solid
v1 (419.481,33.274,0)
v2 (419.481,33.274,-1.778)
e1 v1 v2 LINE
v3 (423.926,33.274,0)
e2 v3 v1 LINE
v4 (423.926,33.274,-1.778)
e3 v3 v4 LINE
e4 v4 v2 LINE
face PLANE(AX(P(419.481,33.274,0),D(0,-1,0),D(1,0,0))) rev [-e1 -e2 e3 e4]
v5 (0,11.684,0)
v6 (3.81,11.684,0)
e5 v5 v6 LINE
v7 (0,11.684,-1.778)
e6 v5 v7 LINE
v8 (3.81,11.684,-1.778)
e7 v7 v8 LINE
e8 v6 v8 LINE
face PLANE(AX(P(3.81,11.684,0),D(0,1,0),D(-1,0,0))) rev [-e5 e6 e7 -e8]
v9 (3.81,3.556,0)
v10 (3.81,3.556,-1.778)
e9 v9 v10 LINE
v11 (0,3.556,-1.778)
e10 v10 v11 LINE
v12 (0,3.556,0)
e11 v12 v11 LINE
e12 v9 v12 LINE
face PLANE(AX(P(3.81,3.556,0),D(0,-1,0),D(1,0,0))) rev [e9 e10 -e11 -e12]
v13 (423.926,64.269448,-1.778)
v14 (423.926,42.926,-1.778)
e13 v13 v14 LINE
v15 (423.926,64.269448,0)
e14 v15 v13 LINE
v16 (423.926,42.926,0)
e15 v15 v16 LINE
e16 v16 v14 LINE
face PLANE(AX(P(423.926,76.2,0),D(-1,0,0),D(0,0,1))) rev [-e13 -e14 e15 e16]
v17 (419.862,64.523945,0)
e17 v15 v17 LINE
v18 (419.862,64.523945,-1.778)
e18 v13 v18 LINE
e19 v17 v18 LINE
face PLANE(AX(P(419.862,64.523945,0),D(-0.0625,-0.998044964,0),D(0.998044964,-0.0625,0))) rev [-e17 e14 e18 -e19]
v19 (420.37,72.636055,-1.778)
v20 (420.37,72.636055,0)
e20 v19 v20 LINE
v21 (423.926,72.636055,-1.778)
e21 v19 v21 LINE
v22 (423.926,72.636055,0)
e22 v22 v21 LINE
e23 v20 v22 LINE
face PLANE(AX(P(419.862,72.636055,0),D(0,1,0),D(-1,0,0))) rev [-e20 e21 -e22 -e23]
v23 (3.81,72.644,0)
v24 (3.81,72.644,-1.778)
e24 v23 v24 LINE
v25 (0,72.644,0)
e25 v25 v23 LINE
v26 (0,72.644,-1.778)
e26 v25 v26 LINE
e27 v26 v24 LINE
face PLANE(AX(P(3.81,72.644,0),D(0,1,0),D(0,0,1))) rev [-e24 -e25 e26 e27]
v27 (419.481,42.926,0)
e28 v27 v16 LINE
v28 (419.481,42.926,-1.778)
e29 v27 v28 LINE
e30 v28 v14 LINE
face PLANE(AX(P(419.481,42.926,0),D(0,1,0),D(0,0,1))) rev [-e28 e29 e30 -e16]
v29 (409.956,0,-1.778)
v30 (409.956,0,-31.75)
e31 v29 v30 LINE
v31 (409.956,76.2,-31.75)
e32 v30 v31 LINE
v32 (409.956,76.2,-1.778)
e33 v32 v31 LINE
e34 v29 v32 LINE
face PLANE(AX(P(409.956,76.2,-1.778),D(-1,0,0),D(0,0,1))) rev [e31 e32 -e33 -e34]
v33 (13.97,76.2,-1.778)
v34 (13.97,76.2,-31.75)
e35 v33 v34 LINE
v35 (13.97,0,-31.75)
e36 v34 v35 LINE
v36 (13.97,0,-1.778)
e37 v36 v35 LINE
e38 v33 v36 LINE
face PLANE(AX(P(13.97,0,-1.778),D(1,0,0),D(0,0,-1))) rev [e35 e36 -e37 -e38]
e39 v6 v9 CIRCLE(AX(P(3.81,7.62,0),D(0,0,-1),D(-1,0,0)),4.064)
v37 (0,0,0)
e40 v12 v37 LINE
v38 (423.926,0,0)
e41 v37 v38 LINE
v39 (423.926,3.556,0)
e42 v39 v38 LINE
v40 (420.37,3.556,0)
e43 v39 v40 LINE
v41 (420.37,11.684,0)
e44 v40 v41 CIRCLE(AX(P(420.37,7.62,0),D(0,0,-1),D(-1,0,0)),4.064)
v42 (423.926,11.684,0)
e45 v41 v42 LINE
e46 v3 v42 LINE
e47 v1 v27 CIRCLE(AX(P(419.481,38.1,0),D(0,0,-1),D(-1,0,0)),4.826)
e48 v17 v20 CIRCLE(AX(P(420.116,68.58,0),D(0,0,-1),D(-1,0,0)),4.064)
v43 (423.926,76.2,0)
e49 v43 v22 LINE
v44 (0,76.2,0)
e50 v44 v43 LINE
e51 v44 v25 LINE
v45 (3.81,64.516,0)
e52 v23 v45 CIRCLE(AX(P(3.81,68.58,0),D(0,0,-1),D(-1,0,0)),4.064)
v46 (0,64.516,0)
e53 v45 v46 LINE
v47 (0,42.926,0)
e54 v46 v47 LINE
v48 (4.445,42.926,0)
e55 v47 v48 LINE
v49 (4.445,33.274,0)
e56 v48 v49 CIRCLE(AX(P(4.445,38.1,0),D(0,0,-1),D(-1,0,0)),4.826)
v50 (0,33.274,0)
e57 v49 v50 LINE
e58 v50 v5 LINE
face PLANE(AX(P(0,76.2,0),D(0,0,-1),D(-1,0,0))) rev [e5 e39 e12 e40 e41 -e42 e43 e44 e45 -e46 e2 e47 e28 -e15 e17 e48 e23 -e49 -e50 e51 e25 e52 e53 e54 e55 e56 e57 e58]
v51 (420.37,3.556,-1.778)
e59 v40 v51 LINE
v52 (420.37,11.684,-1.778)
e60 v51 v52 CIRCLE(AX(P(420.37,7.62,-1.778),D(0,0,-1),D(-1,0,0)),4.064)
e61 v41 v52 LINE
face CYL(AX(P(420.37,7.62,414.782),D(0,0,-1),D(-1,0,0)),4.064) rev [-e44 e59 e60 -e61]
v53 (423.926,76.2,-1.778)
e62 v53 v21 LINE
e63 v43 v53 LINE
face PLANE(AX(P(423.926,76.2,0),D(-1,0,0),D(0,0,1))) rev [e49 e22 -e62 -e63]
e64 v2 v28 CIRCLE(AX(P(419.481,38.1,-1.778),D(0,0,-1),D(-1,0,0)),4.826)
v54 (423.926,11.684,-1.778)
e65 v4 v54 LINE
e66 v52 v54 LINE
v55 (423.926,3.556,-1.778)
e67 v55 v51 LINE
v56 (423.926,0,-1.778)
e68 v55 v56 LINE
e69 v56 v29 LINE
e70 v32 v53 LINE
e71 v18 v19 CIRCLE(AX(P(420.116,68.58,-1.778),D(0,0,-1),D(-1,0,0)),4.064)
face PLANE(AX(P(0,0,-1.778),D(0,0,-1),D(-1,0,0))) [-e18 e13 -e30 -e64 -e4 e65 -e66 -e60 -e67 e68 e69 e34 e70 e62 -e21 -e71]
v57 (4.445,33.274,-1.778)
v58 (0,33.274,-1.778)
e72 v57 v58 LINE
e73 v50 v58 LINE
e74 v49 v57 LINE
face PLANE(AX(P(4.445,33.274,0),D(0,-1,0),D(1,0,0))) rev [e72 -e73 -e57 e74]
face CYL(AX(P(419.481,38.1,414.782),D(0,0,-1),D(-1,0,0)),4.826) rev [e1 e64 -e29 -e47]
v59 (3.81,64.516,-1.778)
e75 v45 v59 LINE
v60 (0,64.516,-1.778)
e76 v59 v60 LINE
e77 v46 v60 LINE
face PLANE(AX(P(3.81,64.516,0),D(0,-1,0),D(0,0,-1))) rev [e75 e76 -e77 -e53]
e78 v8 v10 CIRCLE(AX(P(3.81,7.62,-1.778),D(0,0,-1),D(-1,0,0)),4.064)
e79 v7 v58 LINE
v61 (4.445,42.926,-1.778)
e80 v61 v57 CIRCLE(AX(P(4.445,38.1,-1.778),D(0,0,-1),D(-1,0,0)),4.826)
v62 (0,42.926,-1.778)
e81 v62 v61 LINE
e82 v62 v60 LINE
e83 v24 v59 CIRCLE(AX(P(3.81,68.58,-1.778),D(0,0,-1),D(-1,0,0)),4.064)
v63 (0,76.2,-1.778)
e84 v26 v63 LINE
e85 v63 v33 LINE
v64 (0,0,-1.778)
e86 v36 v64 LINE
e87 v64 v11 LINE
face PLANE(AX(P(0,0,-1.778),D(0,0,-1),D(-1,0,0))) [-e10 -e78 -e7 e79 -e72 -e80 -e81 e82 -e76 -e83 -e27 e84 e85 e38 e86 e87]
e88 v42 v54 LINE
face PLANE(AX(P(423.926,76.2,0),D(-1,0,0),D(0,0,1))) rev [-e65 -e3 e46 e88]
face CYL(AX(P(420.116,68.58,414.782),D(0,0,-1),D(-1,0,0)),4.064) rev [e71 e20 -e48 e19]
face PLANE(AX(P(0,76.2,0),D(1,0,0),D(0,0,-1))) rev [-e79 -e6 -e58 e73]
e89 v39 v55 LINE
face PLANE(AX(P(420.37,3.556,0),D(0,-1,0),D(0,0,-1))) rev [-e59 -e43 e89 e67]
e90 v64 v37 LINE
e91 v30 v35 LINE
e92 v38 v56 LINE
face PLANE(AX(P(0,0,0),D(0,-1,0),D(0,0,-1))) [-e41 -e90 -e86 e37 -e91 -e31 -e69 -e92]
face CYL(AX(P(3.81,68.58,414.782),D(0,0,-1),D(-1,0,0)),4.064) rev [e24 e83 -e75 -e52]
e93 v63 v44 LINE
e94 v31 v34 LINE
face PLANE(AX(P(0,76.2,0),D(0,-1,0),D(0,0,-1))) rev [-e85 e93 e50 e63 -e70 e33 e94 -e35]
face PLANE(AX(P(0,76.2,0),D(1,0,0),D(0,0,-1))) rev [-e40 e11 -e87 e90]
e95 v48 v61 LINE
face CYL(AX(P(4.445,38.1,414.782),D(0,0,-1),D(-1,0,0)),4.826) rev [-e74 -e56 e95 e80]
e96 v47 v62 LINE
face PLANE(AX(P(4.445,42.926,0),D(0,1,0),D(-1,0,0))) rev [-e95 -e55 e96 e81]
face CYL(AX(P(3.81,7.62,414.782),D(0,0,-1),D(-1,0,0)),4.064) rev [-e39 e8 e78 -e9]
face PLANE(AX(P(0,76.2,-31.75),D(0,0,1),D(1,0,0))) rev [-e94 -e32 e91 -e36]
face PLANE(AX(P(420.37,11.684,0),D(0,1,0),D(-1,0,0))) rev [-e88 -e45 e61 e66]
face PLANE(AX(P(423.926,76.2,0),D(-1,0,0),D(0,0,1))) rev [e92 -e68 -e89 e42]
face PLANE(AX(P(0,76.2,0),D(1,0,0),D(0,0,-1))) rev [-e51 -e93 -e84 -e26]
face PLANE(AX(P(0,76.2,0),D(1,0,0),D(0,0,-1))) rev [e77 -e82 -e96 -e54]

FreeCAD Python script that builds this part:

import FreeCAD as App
import Part
import Sketcher
from FreeCAD import Vector
Q = App.Units.Quantity


def add_polygon(sketch, points):
    """Adds a closed chain of lines whose ends are joined by coincident constraints."""
    first, n = sketch.GeometryCount, len(points)
    for a, b in zip(points, points[1:] + points[:1]):
        sketch.addGeometry(Part.LineSegment(App.Vector(*a, 0), App.Vector(*b, 0)), False)
    for i in range(n):
        sketch.addConstraint(Sketcher.Constraint("Coincident", first + i, 2, first + (i + 1) % n, 1))

doc = App.newDocument("Part")
body = doc.addObject("PartDesign::Body", "Body")

# Sketch on XZ plane
sketch1 = body.newObject("Sketcher::SketchObject", "Sketch")
sketch1.AttachmentSupport = (doc.getObject("XZ_Plane"), [""])
sketch1.MapMode = "FlatFace"
add_polygon(sketch1, [(0, -32), (0, 0), (424, 0), (424, -32)])  # lines 0-3
sketch1.addConstraint([
    Sketcher.Constraint("Vertical", 0),
    Sketcher.Constraint("Horizontal", 1),
    Sketcher.Constraint("Vertical", 2),
    Sketcher.Constraint("Horizontal", 3),
    Sketcher.Constraint("Coincident", 0, 2, -1, 1),
    Sketcher.Constraint("DistanceX", 1, 1, 1, 2, Q("16.69 in")),
    Sketcher.Constraint("DistanceY", 0, 1, 0, 2, Q("1.25 in")),
])
pad1 = body.newObject("PartDesign::Pad", "Pad")
pad1.Profile = sketch1
pad1.Length = Q("3 in")
pad1.Reversed = True

# Sketch on XY plane
sketch2 = body.newObject("Sketcher::SketchObject", "Sketch001")
sketch2.AttachmentSupport = (doc.getObject("XY_Plane"), [""])
sketch2.MapMode = "FlatFace"
sketch2.AttachmentOffset = App.Placement(Vector(0, 0, -1.25 * 25.4), App.Rotation())
add_polygon(sketch2, [(424, 76), (424, 0), (410, 0), (410, 76)])  # lines 0-3
add_polygon(sketch2, [(14, 76), (14, 0), (0, 0), (0, 76)])  # lines 4-7
sketch2.addConstraint([
    Sketcher.Constraint("Vertical", 0),
    Sketcher.Constraint("Horizontal", 1),
    Sketcher.Constraint("Vertical", 2),
    Sketcher.Constraint("Horizontal", 3),
    Sketcher.Constraint("Vertical", 4),
    Sketcher.Constraint("Horizontal", 5),
    Sketcher.Constraint("Vertical", 6),
    Sketcher.Constraint("Horizontal", 7),
    Sketcher.Constraint("Coincident", 5, 2, -1, 1),
    Sketcher.Constraint("PointOnObject", 0, 2, -1),
    Sketcher.Constraint("Horizontal", 3, 2, 6, 2),
    Sketcher.Constraint("Equal", 3, 5),
    Sketcher.Constraint("DistanceY", 0, 2, 0, 1, Q("3 in")),
    Sketcher.Constraint("DistanceX", 1, 2, 1, 1, Q("0.55 in")),
    Sketcher.Constraint("DistanceX", -1, 1, 0, 2, Q("16.69 in")),
])
pocket1 = body.newObject("PartDesign::Pocket", "Pocket")
pocket1.Profile = sketch2
pocket1.Length = Q("1.18 in")
pocket1.Reversed = True

# Sketch on XY plane
sketch3 = body.newObject("Sketcher::SketchObject", "Sketch002")
sketch3.AttachmentSupport = (doc.getObject("XY_Plane"), [""])
sketch3.MapMode = "FlatFace"
sketch3.AttachmentOffset = App.Placement(Vector(0, 0, -0.07 * 25.4), App.Rotation())
sketch3.addGeometry([
    Part.Circle(Vector(3.8, 7.6, 0), Vector(0, 0, 1), 4.1),  # 0
    Part.Circle(Vector(3.8, 68.6, 0), Vector(0, 0, 1), 4.1),  # 1
    Part.Circle(Vector(4.4, 38.1, 0), Vector(0, 0, 1), 4.8),  # 2
    Part.Circle(Vector(420.4, 7.6, 0), Vector(0, 0, 1), 4.1),  # 3
    Part.Circle(Vector(420.1, 68.6, 0), Vector(0, 0, 1), 4.1),  # 4
    Part.Circle(Vector(419.5, 38.1, 0), Vector(0, 0, 1), 4.8),  # 5
], False)
sketch3.addConstraint([
    Sketcher.Constraint("Equal", 0, 1),
    Sketcher.Constraint("Equal", 1, 3),
    Sketcher.Constraint("Equal", 3, 4),
    Sketcher.Constraint("Equal", 2, 5),
    Sketcher.Constraint("Horizontal", 0, 3, 3, 3),
    Sketcher.Constraint("Horizontal", 1, 3, 4, 3),
    Sketcher.Constraint("Horizontal", 2, 3, 5, 3),
    Sketcher.Constraint("Vertical", 0, 3, 1, 3),
    Sketcher.Constraint("Diameter", 0, Q("0.32 in")),
    Sketcher.Constraint("Diameter", 2, Q("0.38 in")),
    Sketcher.Constraint("DistanceY", -1, 1, 0, 3, Q("0.3 in")),
    Sketcher.Constraint("DistanceY", -1, 1, 1, 3, Q("2.7 in")),
    Sketcher.Constraint("DistanceY", -1, 1, 2, 3, Q("1.5 in")),
    Sketcher.Constraint("DistanceX", 0, 3, 3, 3, Q("16.4 in")),
    Sketcher.Constraint("DistanceX", -1, 1, 0, 3, Q("0.15 in")),
    Sketcher.Constraint("DistanceX", -1, 1, 4, 3, Q("16.54 in")),
    Sketcher.Constraint("DistanceX", 2, 3, 5, 3, Q("16.34 in")),
    Sketcher.Constraint("DistanceX", -1, 1, 2, 3, Q("0.175 in")),
])
pocket2 = body.newObject("PartDesign::Pocket", "Pocket001")
pocket2.Profile = sketch3
pocket2.Length = Q("16.4 in")
pocket2.Reversed = True

# Sketch on XY plane
sketch4 = body.newObject("Sketcher::SketchObject", "Sketch003")
sketch4.AttachmentSupport = (doc.getObject("XY_Plane"), [""])
sketch4.MapMode = "FlatFace"
sketch4.AttachmentOffset = App.Placement(Vector(0, 0, -0.07 * 25.4), App.Rotation())
add_polygon(sketch4, [(419.9, 72.6), (423.9, 72.6), (423.9, 70)])  # lines 0-2
add_polygon(sketch4, [(423.9, 64.3), (419.9, 64.5), (423.9, 67.2)])  # lines 3-5
add_polygon(sketch4, [(419.5, 42.9), (423.9, 42.9), (423.9, 40)])  # lines 6-8
add_polygon(sketch4, [(423.9, 33.3), (419.5, 33.3), (423.9, 36.2)])  # lines 9-11
add_polygon(sketch4, [(420.4, 11.7), (423.9, 11.7), (423.9, 9.6)])  # lines 12-14
add_polygon(sketch4, [(423.9, 3.6), (420.4, 3.6), (423.9, 5.7)])  # lines 15-17
add_polygon(sketch4, [(0, 72.6), (3.8, 72.6), (0, 70)])  # lines 18-20
add_polygon(sketch4, [(3.8, 64.5), (0, 64.5), (0, 67.2)])  # lines 21-23
add_polygon(sketch4, [(0, 42.9), (4.4, 42.9), (0, 40)])  # lines 24-26
add_polygon(sketch4, [(4.4, 33.3), (0, 33.3), (0, 36.2)])  # lines 27-29
add_polygon(sketch4, [(0, 11.7), (3.8, 11.7), (0, 9)])  # lines 30-32
add_polygon(sketch4, [(3.8, 3.6), (0, 3.6), (0, 6.2)])  # lines 33-35
sketch4.addConstraint([
    Sketcher.Constraint("Horizontal", 0),
    Sketcher.Constraint("Vertical", 1),
    Sketcher.Constraint("Vertical", 5),
    Sketcher.Constraint("Horizontal", 6),
    Sketcher.Constraint("Vertical", 7),
    Sketcher.Constraint("Horizontal", 9),
    Sketcher.Constraint("Vertical", 11),
    Sketcher.Constraint("Horizontal", 12),
    Sketcher.Constraint("Vertical", 13),
    Sketcher.Constraint("Horizontal", 15),
    Sketcher.Constraint("Vertical", 17),
    Sketcher.Constraint("Horizontal", 18),
    Sketcher.Constraint("Vertical", 20),
    Sketcher.Constraint("Horizontal", 21),
    Sketcher.Constraint("Vertical", 22),
    Sketcher.Constraint("Horizontal", 24),
    Sketcher.Constraint("Vertical", 26),
    Sketcher.Constraint("Horizontal", 27),
    Sketcher.Constraint("Vertical", 28),
    Sketcher.Constraint("Horizontal", 30),
    Sketcher.Constraint("Vertical", 32),
    Sketcher.Constraint("Horizontal", 33),
    Sketcher.Constraint("Vertical", 34),
    Sketcher.Constraint("PointOnObject", 19, 2, -2),
    Sketcher.Constraint("PointOnObject", 21, 2, -2),
    Sketcher.Constraint("PointOnObject", 25, 2, -2),
    Sketcher.Constraint("PointOnObject", 27, 2, -2),
    Sketcher.Constraint("PointOnObject", 31, 2, -2),
    Sketcher.Constraint("PointOnObject", 33, 2, -2),
    Sketcher.Constraint("Parallel", 10, 25),
    Sketcher.Constraint("Parallel", 8, 29),
    Sketcher.Constraint("Parallel", 19, 31),
    Sketcher.Constraint("Parallel", 23, 35),
    Sketcher.Constraint("Horizontal", 1, 2, 19, 2),
    Sketcher.Constraint("Horizontal", 4, 2, 22, 2),
    Sketcher.Constraint("Horizontal", 8, 2, 24, 2),
    Sketcher.Constraint("Horizontal", 7, 2, 25, 2),
    Sketcher.Constraint("Horizontal", 11, 2, 27, 2),
    Sketcher.Constraint("Horizontal", 10, 2, 28, 2),
    Sketcher.Constraint("Horizontal", 14, 2, 30, 2),
    Sketcher.Constraint("Horizontal", 17, 2, 33, 2),
    Sketcher.Constraint("Vertical", 2, 2, 3, 2),
    Sketcher.Constraint("Vertical", 1, 2, 4, 2),
    Sketcher.Constraint("Vertical", 5, 2, 6, 2),
    Sketcher.Constraint("Vertical", 8, 2, 9, 2),
    Sketcher.Constraint("Vertical", 7, 2, 10, 2),
    Sketcher.Constraint("Vertical", 11, 2, 12, 2),
    Sketcher.Constraint("Vertical", 14, 2, 15, 2),
    Sketcher.Constraint("Vertical", 13, 2, 16, 2),
    Sketcher.Constraint("Vertical", 18, 2, 23, 2),
    Sketcher.Constraint("Vertical", 24, 2, 29, 2),
    Sketcher.Constraint("Vertical", 23, 2, 30, 2),
    Sketcher.Constraint("Vertical", 30, 2, 35, 2),
    Sketcher.Constraint("Equal", 13, 17),
    Sketcher.Constraint("Equal", 20, 22),
    Sketcher.Constraint("Equal", 2, 4),
    Sketcher.Constraint("DistanceX", 0, 1, 0, 2, Q("0.16 in")),
    Sketcher.Constraint("DistanceX", 12, 1, 12, 2, Q("0.14 in")),
    Sketcher.Constraint("DistanceX", 18, 1, 18, 2, Q("0.15 in")),
    Sketcher.Constraint("DistanceX", 6, 1, 6, 2, Q("0.175 in")),
    Sketcher.Constraint("DistanceX", -1, 1, 0, 2, Q("16.69 in")),
    Sketcher.Constraint("DistanceY", -1, 1, 6, 2, Q("1.69 in")),
    Sketcher.Constraint("DistanceY", -1, 1, 9, 2, Q("1.31 in")),
    Sketcher.Constraint("DistanceY", -1, 1, 12, 2, Q("0.46 in")),
    Sketcher.Constraint("DistanceY", -1, 1, 15, 2, Q("0.14 in")),
    Sketcher.Constraint("DistanceY", -1, 1, 18, 2, Q("2.86 in")),
    Sketcher.Constraint("DistanceY", -1, 1, 21, 2, Q("2.54 in")),
    Sketcher.Constraint("DistanceY", 7, 2, 5, 2, Q("0.9563 in")),
    Sketcher.Constraint("DistanceY", 5, 2, 5, 1, Q("2.89634 mm")),
    Sketcher.Constraint("DistanceY", 7, 2, 7, 1, Q("2.946572 mm")),
    Sketcher.Constraint("Distance", 2, Q("4.847208 mm")),
    Sketcher.Constraint("Distance", 14, Q("4.12802 mm")),
])
pocket3 = body.newObject("PartDesign::Pocket", "Pocket002")
pocket3.Profile = sketch4
pocket3.Type = "ThroughAll"
pocket3.Reversed = True

doc.recompute()
